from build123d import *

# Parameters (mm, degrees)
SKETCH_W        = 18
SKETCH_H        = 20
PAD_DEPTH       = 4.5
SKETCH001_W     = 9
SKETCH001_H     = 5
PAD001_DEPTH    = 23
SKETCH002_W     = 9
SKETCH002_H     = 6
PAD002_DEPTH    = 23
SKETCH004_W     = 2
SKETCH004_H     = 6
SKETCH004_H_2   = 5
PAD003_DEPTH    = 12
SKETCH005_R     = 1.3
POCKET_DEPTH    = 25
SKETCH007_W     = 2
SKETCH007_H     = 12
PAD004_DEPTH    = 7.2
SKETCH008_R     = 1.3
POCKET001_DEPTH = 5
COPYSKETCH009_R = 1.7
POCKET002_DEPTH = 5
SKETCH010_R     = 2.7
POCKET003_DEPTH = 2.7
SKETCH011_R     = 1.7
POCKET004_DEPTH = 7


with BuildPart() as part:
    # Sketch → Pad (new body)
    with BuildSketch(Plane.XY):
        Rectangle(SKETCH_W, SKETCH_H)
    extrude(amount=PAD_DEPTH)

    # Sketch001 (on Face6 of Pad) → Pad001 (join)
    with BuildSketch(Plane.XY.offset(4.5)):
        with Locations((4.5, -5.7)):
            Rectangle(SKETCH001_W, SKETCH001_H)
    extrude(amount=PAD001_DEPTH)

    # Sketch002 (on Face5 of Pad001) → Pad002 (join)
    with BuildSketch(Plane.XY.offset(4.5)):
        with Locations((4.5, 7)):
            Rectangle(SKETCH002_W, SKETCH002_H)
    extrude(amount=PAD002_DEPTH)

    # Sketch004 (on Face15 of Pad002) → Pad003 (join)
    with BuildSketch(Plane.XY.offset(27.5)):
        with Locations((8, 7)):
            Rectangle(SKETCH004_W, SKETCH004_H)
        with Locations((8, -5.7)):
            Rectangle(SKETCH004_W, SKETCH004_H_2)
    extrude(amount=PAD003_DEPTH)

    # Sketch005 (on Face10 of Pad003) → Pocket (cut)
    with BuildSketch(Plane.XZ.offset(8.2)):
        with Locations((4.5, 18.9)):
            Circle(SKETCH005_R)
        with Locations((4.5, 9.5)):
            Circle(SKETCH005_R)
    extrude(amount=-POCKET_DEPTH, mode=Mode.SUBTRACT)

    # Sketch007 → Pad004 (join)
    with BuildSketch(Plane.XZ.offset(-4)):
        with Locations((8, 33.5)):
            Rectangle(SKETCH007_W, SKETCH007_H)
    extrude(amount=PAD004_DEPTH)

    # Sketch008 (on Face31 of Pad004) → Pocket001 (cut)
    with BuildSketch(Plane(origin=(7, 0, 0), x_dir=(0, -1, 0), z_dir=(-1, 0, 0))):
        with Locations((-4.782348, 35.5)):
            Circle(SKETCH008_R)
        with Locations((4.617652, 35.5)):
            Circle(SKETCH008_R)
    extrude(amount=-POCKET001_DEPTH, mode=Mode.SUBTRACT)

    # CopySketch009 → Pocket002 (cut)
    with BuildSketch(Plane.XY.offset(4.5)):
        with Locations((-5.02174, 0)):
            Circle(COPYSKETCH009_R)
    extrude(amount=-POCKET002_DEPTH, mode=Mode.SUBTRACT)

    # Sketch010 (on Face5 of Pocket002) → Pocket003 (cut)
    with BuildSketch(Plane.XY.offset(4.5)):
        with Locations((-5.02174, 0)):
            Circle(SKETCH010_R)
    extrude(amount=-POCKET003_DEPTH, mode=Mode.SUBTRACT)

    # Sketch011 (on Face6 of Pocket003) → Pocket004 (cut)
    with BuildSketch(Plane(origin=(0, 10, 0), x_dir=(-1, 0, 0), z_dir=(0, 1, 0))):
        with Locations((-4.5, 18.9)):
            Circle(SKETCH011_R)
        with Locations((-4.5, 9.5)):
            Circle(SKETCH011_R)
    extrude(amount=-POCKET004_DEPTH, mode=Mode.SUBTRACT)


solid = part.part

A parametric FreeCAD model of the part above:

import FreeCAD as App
import Part
import Sketcher
from FreeCAD import Vector

doc = App.newDocument("Part")
body = doc.addObject("PartDesign::Body", "Body")

# Sketch on XY plane
sketch1 = doc.addObject("Sketcher::SketchObject", "Sketch")
body.addObject(sketch1)
sketch1.AttachmentSupport = (doc.XY_Plane, [""])
sketch1.MapMode = "FlatFace"
sketch1.addGeometry([
    Part.LineSegment(Vector(-9, 10, 0), Vector(-9, -10, 0)),
    Part.LineSegment(Vector(-9, -10, 0), Vector(9, -10, 0)),
    Part.LineSegment(Vector(9, -10, 0), Vector(9, 10, 0)),
    Part.LineSegment(Vector(9, 10, 0), Vector(-9, 10, 0)),
], False)
sketch1.addConstraint([
    Sketcher.Constraint("Coincident", 0, 2, 1, 1),
    Sketcher.Constraint("Coincident", 1, 2, 2, 1),
    Sketcher.Constraint("Coincident", 2, 2, 3, 1),
    Sketcher.Constraint("Coincident", 3, 2, 0, 1),
    Sketcher.Constraint("Vertical", 0),
    Sketcher.Constraint("Horizontal", 1),
    Sketcher.Constraint("Vertical", 2),
    Sketcher.Constraint("Horizontal", 3),
    Sketcher.Constraint("Symmetric", 0, 2, 2, 2, -1, 1),
    Sketcher.Constraint("DistanceX", 1, 1, 1, 2, 18.0),
    Sketcher.Constraint("DistanceY", 0, 2, 0, 1, 20.0),
])
pad1 = doc.addObject("PartDesign::Pad", "Pad")
body.addObject(pad1)
pad1.Profile = sketch1
pad1.Length = 4.5

# Sketch on XY plane
sketch2 = doc.addObject("Sketcher::SketchObject", "Sketch001")
body.addObject(sketch2)
sketch2.AttachmentSupport = (doc.XY_Plane, [""])
sketch2.MapMode = "FlatFace"
sketch2.AttachmentOffset = App.Placement(Vector(0, 0, 4.5), App.Rotation())
sketch2.addGeometry([
    Part.LineSegment(Vector(0, -3.2, 0), Vector(0, -8.2, 0)),
    Part.LineSegment(Vector(0, -8.2, 0), Vector(9, -8.2, 0)),
    Part.LineSegment(Vector(9, -8.2, 0), Vector(9, -3.2, 0)),
    Part.LineSegment(Vector(9, -3.2, 0), Vector(0, -3.2, 0)),
], False)
sketch2.addConstraint([
    Sketcher.Constraint("Coincident", 0, 2, 1, 1),
    Sketcher.Constraint("Coincident", 1, 2, 2, 1),
    Sketcher.Constraint("Coincident", 2, 2, 3, 1),
    Sketcher.Constraint("Coincident", 3, 2, 0, 1),
    Sketcher.Constraint("Vertical", 0),
    Sketcher.Constraint("Horizontal", 1),
    Sketcher.Constraint("Vertical", 2),
    Sketcher.Constraint("Horizontal", 3),
    Sketcher.Constraint("PointOnObject", 0, 2, -2),
    Sketcher.Constraint("DistanceX", 1, 1, 1, 2, 9.0),
    Sketcher.Constraint("DistanceY", 0, 2, 0, 1, 5.0),
    Sketcher.Constraint("DistanceY", 0, 2, -1, 1, 8.2),
])
pad2 = doc.addObject("PartDesign::Pad", "Pad001")
body.addObject(pad2)
pad2.Profile = sketch2
pad2.Length = 23

# Sketch on XY plane
sketch3 = doc.addObject("Sketcher::SketchObject", "Sketch002")
body.addObject(sketch3)
sketch3.AttachmentSupport = (doc.XY_Plane, [""])
sketch3.MapMode = "FlatFace"
sketch3.AttachmentOffset = App.Placement(Vector(0, 0, 4.5), App.Rotation())
sketch3.addGeometry([
    Part.LineSegment(Vector(0, 10, 0), Vector(0, 4, 0)),
    Part.LineSegment(Vector(0, 4, 0), Vector(9, 4, 0)),
    Part.LineSegment(Vector(9, 4, 0), Vector(9, 10, 0)),
    Part.LineSegment(Vector(9, 10, 0), Vector(0, 10, 0)),
], False)
sketch3.addConstraint([
    Sketcher.Constraint("Coincident", 0, 2, 1, 1),
    Sketcher.Constraint("Coincident", 1, 2, 2, 1),
    Sketcher.Constraint("Coincident", 2, 2, 3, 1),
    Sketcher.Constraint("Coincident", 3, 2, 0, 1),
    Sketcher.Constraint("Vertical", 0),
    Sketcher.Constraint("Horizontal", 1),
    Sketcher.Constraint("Vertical", 2),
    Sketcher.Constraint("Horizontal", 3),
    Sketcher.Constraint("PointOnObject", 0, 2, -2),
    Sketcher.Constraint("DistanceX", 1, 1, 1, 2, 9.0),
    Sketcher.Constraint("DistanceY", 0, 2, 0, 1, 6.0),
    Sketcher.Constraint("DistanceY", -1, 1, 0, 2, 4.0),
])
pad3 = doc.addObject("PartDesign::Pad", "Pad002")
body.addObject(pad3)
pad3.Profile = sketch3
pad3.Length = 23

# Sketch on XY plane
sketch4 = doc.addObject("Sketcher::SketchObject", "Sketch003")
body.addObject(sketch4)
sketch4.AttachmentSupport = (doc.XY_Plane, [""])
sketch4.MapMode = "FlatFace"
sketch4.AttachmentOffset = App.Placement(Vector(0, 0, 27.5), App.Rotation())
sketch4.addGeometry([
    Part.LineSegment(Vector(7, 10, 0), Vector(7, 4, 0)),  # 0
    Part.LineSegment(Vector(7, 4, 0), Vector(9, 4, 0)),  # 1
    Part.LineSegment(Vector(9, 4, 0), Vector(9, 10, 0)),  # 2
    Part.LineSegment(Vector(9, 10, 0), Vector(7, 10, 0)),  # 3
    Part.LineSegment(Vector(7, -3.2, 0), Vector(7, -8.2, 0)),  # 4
    Part.LineSegment(Vector(7, -8.2, 0), Vector(9, -8.2, 0)),  # 5
    Part.LineSegment(Vector(9, -8.2, 0), Vector(9, -3.2, 0)),  # 6
    Part.LineSegment(Vector(9, -3.2, 0), Vector(7, -3.2, 0)),  # 7
], False)
sketch4.addConstraint([
    Sketcher.Constraint("Coincident", 0, 2, 1, 1),
    Sketcher.Constraint("Coincident", 1, 2, 2, 1),
    Sketcher.Constraint("Coincident", 2, 2, 3, 1),
    Sketcher.Constraint("Coincident", 3, 2, 0, 1),
    Sketcher.Constraint("Coincident", 4, 2, 5, 1),
    Sketcher.Constraint("Coincident", 5, 2, 6, 1),
    Sketcher.Constraint("Coincident", 6, 2, 7, 1),
    Sketcher.Constraint("Coincident", 7, 2, 4, 1),
    Sketcher.Constraint("Vertical", 0),
    Sketcher.Constraint("Horizontal", 1),
    Sketcher.Constraint("Vertical", 2),
    Sketcher.Constraint("Horizontal", 3),
    Sketcher.Constraint("Vertical", 4),
    Sketcher.Constraint("Horizontal", 5),
    Sketcher.Constraint("Vertical", 6),
    Sketcher.Constraint("Horizontal", 7),
    Sketcher.Constraint("Vertical", 3, 2, 4, 2),
    Sketcher.Constraint("Vertical", 2, 2, 5, 2),
    Sketcher.Constraint("DistanceX", 1, 1, 1, 2, 2.0),
    Sketcher.Constraint("DistanceY", 0, 2, 0, 1, 6.0),
    Sketcher.Constraint("DistanceY", 4, 2, 4, 1, 5.0),
    Sketcher.Constraint("DistanceX", -1, 1, 0, 2, 7.0),
    Sketcher.Constraint("DistanceY", -1, 1, 0, 2, 4.0),
    Sketcher.Constraint("DistanceY", 4, 2, -1, 1, 8.2),
])
pad4 = doc.addObject("PartDesign::Pad", "Pad003")
body.addObject(pad4)
pad4.Profile = sketch4
pad4.Length = 12

# Sketch on XZ plane
sketch5 = doc.addObject("Sketcher::SketchObject", "Sketch004")
body.addObject(sketch5)
sketch5.AttachmentSupport = (doc.XZ_Plane, [""])
sketch5.MapMode = "FlatFace"
sketch5.AttachmentOffset = App.Placement(Vector(0, 0, 8.2), App.Rotation())
sketch5.addGeometry([
    Part.Circle(Vector(4.5, 18.9, 0), Vector(0, 0, 1), 1.3),
    Part.Circle(Vector(4.5, 9.5, 0), Vector(0, 0, 1), 1.3),
], False)
sketch5.addConstraint([
    Sketcher.Constraint("Equal", 0, 1),
    Sketcher.Constraint("Vertical", 0, 3, 1, 3),
    Sketcher.Constraint("Diameter", 0, 2.6),
    Sketcher.Constraint("DistanceX", -1, 1, 0, 3, 4.5),
    Sketcher.Constraint("DistanceY", -1, 1, 0, 3, 18.9),
    Sketcher.Constraint("DistanceY", -1, 1, 1, 3, 9.5),
])
pocket1 = doc.addObject("PartDesign::Pocket", "Pocket")
body.addObject(pocket1)
pocket1.Profile = sketch5
pocket1.Length = 25

# Sketch on XZ plane
sketch6 = doc.addObject("Sketcher::SketchObject", "Sketch005")
body.addObject(sketch6)
sketch6.AttachmentSupport = (doc.XZ_Plane, [""])
sketch6.MapMode = "FlatFace"
sketch6.AttachmentOffset = App.Placement(Vector(0, 0, -4), App.Rotation())
sketch6.addGeometry([
    Part.LineSegment(Vector(7, 39.5, 0), Vector(7, 27.5, 0)),
    Part.LineSegment(Vector(7, 27.5, 0), Vector(9, 27.5, 0)),
    Part.LineSegment(Vector(9, 27.5, 0), Vector(9, 39.5, 0)),
    Part.LineSegment(Vector(9, 39.5, 0), Vector(7, 39.5, 0)),
], False)
sketch6.addConstraint([
    Sketcher.Constraint("Coincident", 0, 2, 1, 1),
    Sketcher.Constraint("Coincident", 1, 2, 2, 1),
    Sketcher.Constraint("Coincident", 2, 2, 3, 1),
    Sketcher.Constraint("Coincident", 3, 2, 0, 1),
    Sketcher.Constraint("Vertical", 0),
    Sketcher.Constraint("Horizontal", 1),
    Sketcher.Constraint("Vertical", 2),
    Sketcher.Constraint("Horizontal", 3),
    Sketcher.Constraint("DistanceX", 1, 1, 1, 2, 2.0),
    Sketcher.Constraint("DistanceY", 0, 2, 0, 1, 12.0),
    Sketcher.Constraint("DistanceX", -1, 1, 0, 2, 7.0),
    Sketcher.Constraint("DistanceY", -1, 1, 0, 2, 27.5),
])
pad5 = doc.addObject("PartDesign::Pad", "Pad004")
body.addObject(pad5)
pad5.Profile = sketch6
pad5.Length = 7.2

# Sketch on YZ plane
sketch7 = doc.addObject("Sketcher::SketchObject", "Sketch006")
body.addObject(sketch7)
sketch7.AttachmentSupport = (doc.YZ_Plane, [""])
sketch7.MapMode = "FlatFace"
sketch7.AttachmentOffset = App.Placement(Vector(0, 0, 7), App.Rotation())
sketch7.addGeometry([
    Part.Circle(Vector(4.782348, 35.5, 0), Vector(0, 0, 1), 1.3),
    Part.Circle(Vector(-4.617652, 35.5, 0), Vector(0, 0, 1), 1.3),
], False)
sketch7.addConstraint([
    Sketcher.Constraint("Equal", 0, 1),
    Sketcher.Constraint("Horizontal", 0, 3, 1, 3),
    Sketcher.Constraint("Diameter", 0, 2.6),
    Sketcher.Constraint("DistanceY", -1, 1, 0, 3, 35.5),
    Sketcher.Constraint("DistanceX", 1, 3, 0, 3, 9.4),
    Sketcher.Constraint("DistanceX", 1, 3, -1, 1, 4.617652),
])
pocket2 = doc.addObject("PartDesign::Pocket", "Pocket001")
body.addObject(pocket2)
pocket2.Profile = sketch7
pocket2.Length = 5
pocket2.Reversed = True

# Sketch on XY plane
sketch8 = doc.addObject("Sketcher::SketchObject", "Sketch007")
body.addObject(sketch8)
sketch8.AttachmentSupport = (doc.XY_Plane, [""])
sketch8.MapMode = "FlatFace"
sketch8.AttachmentOffset = App.Placement(Vector(0, 0, 4.5), App.Rotation())
sketch8.addGeometry(Part.Circle(Vector(-5.02174, 0, 0), Vector(0, 0, 1), 1.7), False)
sketch8.addConstraint([
    Sketcher.Constraint("PointOnObject", 0, 3, -1),
    Sketcher.Constraint("Diameter", 0, 3.4),
    Sketcher.Constraint("DistanceX", 0, 3, -1, 1, 5.02174),
])
pocket3 = doc.addObject("PartDesign::Pocket", "Pocket002")
body.addObject(pocket3)
pocket3.Profile = sketch8
pocket3.Length = 5

# Sketch on XY plane
sketch9 = doc.addObject("Sketcher::SketchObject", "Sketch008")
body.addObject(sketch9)
sketch9.AttachmentSupport = (doc.XY_Plane, [""])
sketch9.MapMode = "FlatFace"
sketch9.AttachmentOffset = App.Placement(Vector(0, 0, 4.5), App.Rotation())
sketch9.addGeometry(Part.Circle(Vector(-5.02174, 0, 0), Vector(0, 0, 1), 2.7), False)
sketch9.addConstraint([
    Sketcher.Constraint("PointOnObject", 0, 3, -1),
    Sketcher.Constraint("Diameter", 0, 5.4),
    Sketcher.Constraint("DistanceX", 0, 3, -1, 1, 5.02174),
])
pocket4 = doc.addObject("PartDesign::Pocket", "Pocket003")
body.addObject(pocket4)
pocket4.Profile = sketch9
pocket4.Length = 2.7

# Sketch on XZ plane
sketch10 = doc.addObject("Sketcher::SketchObject", "Sketch009")
body.addObject(sketch10)
sketch10.AttachmentSupport = (doc.XZ_Plane, [""])
sketch10.MapMode = "FlatFace"
sketch10.AttachmentOffset = App.Placement(Vector(0, 0, -10), App.Rotation())
sketch10.addGeometry([
    Part.Circle(Vector(4.5, 18.9, 0), Vector(0, 0, 1), 1.7),
    Part.Circle(Vector(4.5, 9.5, 0), Vector(0, 0, 1), 1.7),
], False)
sketch10.addConstraint([
    Sketcher.Constraint("Equal", 0, 1),
    Sketcher.Constraint("Vertical", 0, 3, 1, 3),
    Sketcher.Constraint("Diameter", 0, 3.4),
    Sketcher.Constraint("DistanceX", -1, 1, 0, 3, 4.5),
    Sketcher.Constraint("DistanceY", -1, 1, 0, 3, 18.9),
    Sketcher.Constraint("DistanceY", -1, 1, 1, 3, 9.5),
])
pocket5 = doc.addObject("PartDesign::Pocket", "Pocket004")
body.addObject(pocket5)
pocket5.Profile = sketch10
pocket5.Length = 7
pocket5.Reversed = True

doc.recompute()
